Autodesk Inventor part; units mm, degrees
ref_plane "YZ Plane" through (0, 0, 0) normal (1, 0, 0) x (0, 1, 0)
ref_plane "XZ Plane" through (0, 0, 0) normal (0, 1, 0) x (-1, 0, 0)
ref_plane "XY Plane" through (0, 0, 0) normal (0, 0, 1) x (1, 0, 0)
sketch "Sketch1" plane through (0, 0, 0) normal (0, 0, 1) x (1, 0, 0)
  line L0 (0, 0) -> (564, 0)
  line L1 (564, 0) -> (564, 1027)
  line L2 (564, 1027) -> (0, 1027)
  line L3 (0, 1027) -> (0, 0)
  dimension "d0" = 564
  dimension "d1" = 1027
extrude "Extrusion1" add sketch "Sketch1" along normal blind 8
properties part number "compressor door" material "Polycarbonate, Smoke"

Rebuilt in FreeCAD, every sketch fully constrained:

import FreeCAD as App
import Part
import Sketcher


def add_polygon(sketch, points):
    """Adds a closed chain of lines whose ends are joined by coincident constraints."""
    first, n = sketch.GeometryCount, len(points)
    for a, b in zip(points, points[1:] + points[:1]):
        sketch.addGeometry(Part.LineSegment(App.Vector(*a, 0), App.Vector(*b, 0)), False)
    for i in range(n):
        sketch.addConstraint(Sketcher.Constraint("Coincident", first + i, 2, first + (i + 1) % n, 1))

doc = App.newDocument("Part")
body = doc.addObject("PartDesign::Body", "Body")

# Sketch on XY plane
sketch1 = body.newObject("Sketcher::SketchObject", "Sketch")
sketch1.AttachmentSupport = (doc.getObject("XY_Plane"), [""])
sketch1.MapMode = "FlatFace"
add_polygon(sketch1, [(0, 1027), (0, 0), (564, 0), (564, 1027)])  # lines 0-3
sketch1.addConstraint(Sketcher.Constraint("Vertical", 0))
sketch1.addConstraint(Sketcher.Constraint("Horizontal", 1))
sketch1.addConstraint(Sketcher.Constraint("Vertical", 2))
sketch1.addConstraint(Sketcher.Constraint("Horizontal", 3))
sketch1.addConstraint(Sketcher.Constraint("Coincident", 0, 2, -1, 1))
sketch1.addConstraint(Sketcher.Constraint("DistanceX", 1, 1, 1, 2, 564.0))
sketch1.addConstraint(Sketcher.Constraint("DistanceY", 0, 2, 0, 1, 1027.0))
pad1 = body.newObject("PartDesign::Pad", "Pad")
pad1.Profile = sketch1
pad1.Length = 8

doc.recompute()
